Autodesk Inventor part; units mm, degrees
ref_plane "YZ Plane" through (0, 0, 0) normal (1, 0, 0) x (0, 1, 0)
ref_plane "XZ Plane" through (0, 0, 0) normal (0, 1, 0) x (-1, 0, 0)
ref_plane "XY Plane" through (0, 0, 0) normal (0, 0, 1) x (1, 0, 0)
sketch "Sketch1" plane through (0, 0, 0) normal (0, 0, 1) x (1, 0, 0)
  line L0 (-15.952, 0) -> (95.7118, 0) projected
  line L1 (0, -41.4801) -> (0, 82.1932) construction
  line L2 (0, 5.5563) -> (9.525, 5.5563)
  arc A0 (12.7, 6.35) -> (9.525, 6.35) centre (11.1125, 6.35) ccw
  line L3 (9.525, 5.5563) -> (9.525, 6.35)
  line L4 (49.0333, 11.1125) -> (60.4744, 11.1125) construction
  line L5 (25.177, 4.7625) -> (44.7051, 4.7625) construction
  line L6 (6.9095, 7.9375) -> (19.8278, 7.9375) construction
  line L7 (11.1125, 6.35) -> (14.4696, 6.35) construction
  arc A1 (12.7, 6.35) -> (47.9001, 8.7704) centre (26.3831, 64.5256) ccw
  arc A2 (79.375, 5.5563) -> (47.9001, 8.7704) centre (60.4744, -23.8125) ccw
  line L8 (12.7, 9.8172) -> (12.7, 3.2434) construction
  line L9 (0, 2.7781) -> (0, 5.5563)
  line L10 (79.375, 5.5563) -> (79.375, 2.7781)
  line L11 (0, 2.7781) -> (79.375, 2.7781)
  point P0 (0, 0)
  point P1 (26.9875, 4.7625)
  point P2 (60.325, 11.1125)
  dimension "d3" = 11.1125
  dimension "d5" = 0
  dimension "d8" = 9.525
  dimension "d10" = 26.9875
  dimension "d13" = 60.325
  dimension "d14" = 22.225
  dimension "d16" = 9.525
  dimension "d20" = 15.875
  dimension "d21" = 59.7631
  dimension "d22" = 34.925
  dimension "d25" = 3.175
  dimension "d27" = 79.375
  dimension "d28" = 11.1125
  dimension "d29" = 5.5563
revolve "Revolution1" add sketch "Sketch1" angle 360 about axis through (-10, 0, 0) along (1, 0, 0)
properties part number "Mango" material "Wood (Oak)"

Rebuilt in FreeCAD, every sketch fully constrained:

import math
import FreeCAD as App
import Part
import Sketcher
Q = App.Units.Quantity

doc = App.newDocument("Part")
params = doc.addObject("Spreadsheet::Sheet", "Params")
for row, (alias, value) in enumerate([
    ("sketch1_radius", "1.375 in"),
    ("sketch1_radius2", "0.0625 in"),
    ("sketch1_width", "0.375 in"),
    ("sketch1_width2", "3.125 in"),
    ("sketch1_height", "0.109378 in"),
    ("revolution_angle", "360 deg"),
], start=1):
    params.set(f"A{row}", alias)
    params.set(f"B{row}", "=" + value)
    params.setAlias(f"B{row}", alias)

body = doc.addObject("PartDesign::Body", "Body")

# Sketch on XY plane
sketch1 = doc.addObject("Sketcher::SketchObject", "Sketch")
body.addObject(sketch1)
sketch1.AttachmentSupport = (doc.XY_Plane, [""])
sketch1.MapMode = "FlatFace"
sketch1.addGeometry([
    Part.LineSegment(App.Vector(9.5, 5.6, 0), App.Vector(0, 5.6, 0)),  # 0
    Part.LineSegment(App.Vector(0, 5.6, 0), App.Vector(0, 2.8, 0)),  # 1
    Part.LineSegment(App.Vector(0, 2.8, 0), App.Vector(79.4, 2.8, 0)),  # 2
    Part.LineSegment(App.Vector(79.4, 2.8, 0), App.Vector(79.4, 5.6, 0)),  # 3
    Part.ArcOfCircle(Part.Circle(App.Vector(60.5, -23.8, 0), App.Vector(0, 0, 1), 34.9), math.radians(57), math.radians(111)),  # 4
    Part.ArcOfCircle(Part.Circle(App.Vector(26.4, 64.5, 0), App.Vector(0, 0, 1), 59.8), math.radians(-103), math.radians(-69)),  # 5
    Part.ArcOfCircle(Part.Circle(App.Vector(11.1, 6.3, 0), App.Vector(0, 0, 1), 1.6), math.radians(0), math.radians(180)),  # 6
    Part.LineSegment(App.Vector(9.5, 6.3, 0), App.Vector(9.5, 5.6, 0)),  # 7
], False)
sketch1.addConstraint([
    Sketcher.Constraint("Coincident", 0, 2, 1, 1),
    Sketcher.Constraint("Coincident", 1, 2, 2, 1),
    Sketcher.Constraint("Coincident", 2, 2, 3, 1),
    Sketcher.Constraint("Coincident", 3, 2, 4, 1),
    Sketcher.Constraint("Tangent", 4, 2, 5, 2),
    Sketcher.Constraint("Coincident", 5, 1, 6, 1),
    Sketcher.Constraint("Tangent", 6, 2, 7, 1),
    Sketcher.Constraint("Coincident", 7, 2, 0, 1),
    Sketcher.Constraint("Horizontal", 0),
    Sketcher.Constraint("Vertical", 1),
    Sketcher.Constraint("Horizontal", 2),
    Sketcher.Constraint("Vertical", 3),
    Sketcher.Constraint("Vertical", 7),
    Sketcher.Constraint("PointOnObject", 0, 2, -2),
    Sketcher.Constraint("Horizontal", 0, 2, 3, 2),
    Sketcher.Constraint("Horizontal", 6, 3, 5, 1),
    Sketcher.Constraint("Radius", 4, Q("1.375 in")),
    Sketcher.Constraint("Radius", 6, Q("0.0625 in")),
    Sketcher.Constraint("DistanceX", 0, 2, 0, 1, Q("0.375 in")),
    Sketcher.Constraint("DistanceX", 2, 1, 2, 2, Q("3.125 in")),
    Sketcher.Constraint("Radius", 5, Q("59.763 mm")),
    Sketcher.Constraint("DistanceY", -1, 1, 0, 2, Q("0.218752 in")),
    Sketcher.Constraint("DistanceY", 1, 2, 1, 1, Q("0.109378 in")),
    Sketcher.Constraint("DistanceY", 7, 2, 7, 1, Q("0.031248 in")),
    Sketcher.Constraint("DistanceY", 4, 3, -1, 1, Q("0.9375 in")),
])
sketch1.setExpression("Constraints[16]", "Params.sketch1_radius")
sketch1.setExpression("Constraints[17]", "Params.sketch1_radius2")
sketch1.setExpression("Constraints[18]", "Params.sketch1_width")
sketch1.setExpression("Constraints[19]", "Params.sketch1_width2")
sketch1.setExpression("Constraints[22]", "Params.sketch1_height")
revolution = doc.addObject("PartDesign::Revolution", "Revolution")
body.addObject(revolution)
revolution.Profile = sketch1
revolution.ReferenceAxis = (sketch1, ["H_Axis"])
revolution.setExpression("Angle", "Params.revolution_angle")

doc.recompute()
